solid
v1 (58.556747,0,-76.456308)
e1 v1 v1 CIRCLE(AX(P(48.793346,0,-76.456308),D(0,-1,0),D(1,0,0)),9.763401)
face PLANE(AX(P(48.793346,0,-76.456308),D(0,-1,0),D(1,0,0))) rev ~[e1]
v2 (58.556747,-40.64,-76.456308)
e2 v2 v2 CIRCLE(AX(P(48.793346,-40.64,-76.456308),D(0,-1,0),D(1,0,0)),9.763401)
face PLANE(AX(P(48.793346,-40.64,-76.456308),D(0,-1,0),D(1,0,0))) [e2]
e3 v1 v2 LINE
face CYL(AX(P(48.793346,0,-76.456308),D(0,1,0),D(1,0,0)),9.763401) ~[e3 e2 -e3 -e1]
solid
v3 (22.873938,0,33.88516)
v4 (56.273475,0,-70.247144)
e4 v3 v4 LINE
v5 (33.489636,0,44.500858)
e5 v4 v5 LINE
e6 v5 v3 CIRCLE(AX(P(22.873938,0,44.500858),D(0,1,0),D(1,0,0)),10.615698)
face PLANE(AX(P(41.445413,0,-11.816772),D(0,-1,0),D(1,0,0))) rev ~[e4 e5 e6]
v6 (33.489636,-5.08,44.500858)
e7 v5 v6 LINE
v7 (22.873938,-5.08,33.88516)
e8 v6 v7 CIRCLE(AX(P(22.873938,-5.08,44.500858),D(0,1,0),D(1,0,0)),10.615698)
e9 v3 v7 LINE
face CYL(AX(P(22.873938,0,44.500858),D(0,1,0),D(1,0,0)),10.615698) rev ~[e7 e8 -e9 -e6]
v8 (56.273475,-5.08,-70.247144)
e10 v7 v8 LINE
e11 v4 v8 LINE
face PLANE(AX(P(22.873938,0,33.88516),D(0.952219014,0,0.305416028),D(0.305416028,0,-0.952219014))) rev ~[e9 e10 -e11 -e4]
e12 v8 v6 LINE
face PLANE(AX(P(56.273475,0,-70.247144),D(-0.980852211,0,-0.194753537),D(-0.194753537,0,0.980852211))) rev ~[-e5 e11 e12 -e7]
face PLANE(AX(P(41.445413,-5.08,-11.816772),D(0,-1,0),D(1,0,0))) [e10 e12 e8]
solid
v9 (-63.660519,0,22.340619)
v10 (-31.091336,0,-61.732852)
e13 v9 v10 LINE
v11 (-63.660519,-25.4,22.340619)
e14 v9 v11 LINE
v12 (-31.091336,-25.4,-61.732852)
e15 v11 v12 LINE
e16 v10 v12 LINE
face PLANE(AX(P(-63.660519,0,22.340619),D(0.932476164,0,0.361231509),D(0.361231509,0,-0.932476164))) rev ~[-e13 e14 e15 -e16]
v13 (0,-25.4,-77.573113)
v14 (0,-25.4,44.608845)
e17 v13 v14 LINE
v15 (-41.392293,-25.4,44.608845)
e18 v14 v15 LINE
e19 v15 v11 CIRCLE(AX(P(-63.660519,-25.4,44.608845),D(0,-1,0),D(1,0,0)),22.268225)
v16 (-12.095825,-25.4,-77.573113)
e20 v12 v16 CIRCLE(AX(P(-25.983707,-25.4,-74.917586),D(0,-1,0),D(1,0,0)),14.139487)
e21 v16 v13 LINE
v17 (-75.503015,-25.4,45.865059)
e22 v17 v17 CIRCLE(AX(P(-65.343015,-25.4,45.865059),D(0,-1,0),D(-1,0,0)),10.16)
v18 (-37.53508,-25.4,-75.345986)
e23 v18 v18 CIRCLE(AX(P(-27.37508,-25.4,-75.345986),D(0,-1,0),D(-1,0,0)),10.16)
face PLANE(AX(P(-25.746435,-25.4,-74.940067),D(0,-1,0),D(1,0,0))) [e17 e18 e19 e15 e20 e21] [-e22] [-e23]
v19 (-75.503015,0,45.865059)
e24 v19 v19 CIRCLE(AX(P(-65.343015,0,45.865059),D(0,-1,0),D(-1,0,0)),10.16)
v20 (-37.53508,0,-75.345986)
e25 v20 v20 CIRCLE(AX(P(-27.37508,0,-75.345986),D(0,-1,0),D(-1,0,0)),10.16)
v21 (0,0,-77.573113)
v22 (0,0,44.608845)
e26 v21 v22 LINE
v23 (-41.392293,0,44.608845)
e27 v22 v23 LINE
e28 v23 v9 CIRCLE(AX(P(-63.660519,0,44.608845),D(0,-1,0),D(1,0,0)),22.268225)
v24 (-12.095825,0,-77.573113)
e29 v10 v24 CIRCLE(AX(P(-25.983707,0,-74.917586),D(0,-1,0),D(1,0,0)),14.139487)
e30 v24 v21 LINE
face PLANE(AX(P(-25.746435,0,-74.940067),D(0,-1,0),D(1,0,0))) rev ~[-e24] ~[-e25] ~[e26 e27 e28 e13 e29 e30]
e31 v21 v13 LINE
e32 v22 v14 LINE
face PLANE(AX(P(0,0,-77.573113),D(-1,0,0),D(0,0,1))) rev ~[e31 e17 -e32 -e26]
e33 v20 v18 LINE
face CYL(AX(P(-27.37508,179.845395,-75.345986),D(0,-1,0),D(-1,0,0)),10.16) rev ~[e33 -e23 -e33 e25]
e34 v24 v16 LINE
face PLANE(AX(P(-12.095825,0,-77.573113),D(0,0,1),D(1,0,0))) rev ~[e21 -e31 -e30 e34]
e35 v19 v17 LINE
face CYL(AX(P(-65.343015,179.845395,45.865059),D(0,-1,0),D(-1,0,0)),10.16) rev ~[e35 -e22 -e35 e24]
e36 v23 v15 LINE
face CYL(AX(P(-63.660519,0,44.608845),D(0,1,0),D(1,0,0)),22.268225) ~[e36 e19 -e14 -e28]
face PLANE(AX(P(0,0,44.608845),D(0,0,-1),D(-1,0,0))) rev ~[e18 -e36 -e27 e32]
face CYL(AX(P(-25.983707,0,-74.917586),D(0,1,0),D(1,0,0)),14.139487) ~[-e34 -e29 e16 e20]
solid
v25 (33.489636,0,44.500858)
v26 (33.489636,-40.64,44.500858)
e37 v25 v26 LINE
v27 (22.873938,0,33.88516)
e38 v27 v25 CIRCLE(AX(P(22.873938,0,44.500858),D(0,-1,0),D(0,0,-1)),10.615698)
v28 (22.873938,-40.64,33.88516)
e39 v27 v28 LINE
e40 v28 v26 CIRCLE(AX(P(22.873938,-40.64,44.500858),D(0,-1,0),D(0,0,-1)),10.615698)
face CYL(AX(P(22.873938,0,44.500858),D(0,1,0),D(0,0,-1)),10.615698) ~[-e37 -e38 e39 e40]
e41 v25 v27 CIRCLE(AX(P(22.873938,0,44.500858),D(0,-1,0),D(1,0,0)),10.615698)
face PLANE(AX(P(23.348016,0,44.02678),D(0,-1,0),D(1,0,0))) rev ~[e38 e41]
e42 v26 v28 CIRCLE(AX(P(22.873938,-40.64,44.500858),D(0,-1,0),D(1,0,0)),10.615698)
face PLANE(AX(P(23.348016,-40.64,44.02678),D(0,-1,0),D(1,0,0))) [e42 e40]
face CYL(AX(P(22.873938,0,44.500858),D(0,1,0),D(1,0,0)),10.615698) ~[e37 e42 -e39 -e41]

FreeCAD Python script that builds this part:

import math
import FreeCAD as App
import Part
import Sketcher
Q = App.Units.Quantity

doc = App.newDocument("Part")
params = doc.addObject("Spreadsheet::Sheet", "Params")
for row, (alias, value) in enumerate([
    ("pad1_length", "1 in"),
    ("sketch2_diameter", "0.8 in"),
    ("hole_diameter", "0.8 in"),
    ("pad2_length", "1.6 in"),
    ("pad3_length", "1.6 in"),
    ("pad4_length", "0.2 in"),
], start=1):
    params.set(f"A{row}", alias)
    params.set(f"B{row}", "=" + value)
    params.setAlias(f"B{row}", alias)

body = doc.addObject("PartDesign::Body", "Body")

# Sketch on XZ plane
sketch1 = doc.addObject("Sketcher::SketchObject", "Sketch")
body.addObject(sketch1)
sketch1.AttachmentSupport = (doc.XZ_Plane, [""])
sketch1.MapMode = "FlatFace"
sketch1.addGeometry(Part.ArcOfCircle(Part.Circle(App.Vector(-25.983707, -74.917586, 0), App.Vector(0, 0, 1), 14.139487), math.radians(111.175846), math.radians(349.175039)), False)
sketch1.addGeometry(Part.LineSegment(App.Vector(-12.095825, -77.573113, 0), App.Vector(0, -77.573113, 0)), False)
sketch1.addGeometry(Part.LineSegment(App.Vector(0, -77.573113, 0), App.Vector(0, 44.608845, 0)), False)
sketch1.addGeometry(Part.LineSegment(App.Vector(0, 44.608845, 0), App.Vector(-41.392293, 44.608845, 0)), False)
sketch1.addGeometry(Part.ArcOfCircle(Part.Circle(App.Vector(-63.660519, 44.608845, 0), App.Vector(0, 0, 1), 22.268225), math.radians(0), math.radians(270)), False)
sketch1.addGeometry(Part.LineSegment(App.Vector(-63.660519, 22.340619, 0), App.Vector(-31.091336, -61.732852, 0)), False)
sketch1.addConstraint(Sketcher.Constraint("Coincident", 0, 2, 1, 1))
sketch1.addConstraint(Sketcher.Constraint("Coincident", 1, 2, 2, 1))
sketch1.addConstraint(Sketcher.Constraint("Coincident", 2, 2, 3, 1))
sketch1.addConstraint(Sketcher.Constraint("Coincident", 3, 2, 4, 1))
sketch1.addConstraint(Sketcher.Constraint("Coincident", 4, 2, 5, 1))
sketch1.addConstraint(Sketcher.Constraint("Coincident", 5, 2, 0, 1))
sketch1.addConstraint(Sketcher.Constraint("Horizontal", 1))
sketch1.addConstraint(Sketcher.Constraint("Vertical", 2))
sketch1.addConstraint(Sketcher.Constraint("Horizontal", 3))
sketch1.addConstraint(Sketcher.Constraint("PointOnObject", 1, 2, -2))
sketch1.addConstraint(Sketcher.Constraint("Horizontal", 4, 3, 2, 2))
sketch1.addConstraint(Sketcher.Constraint("Radius", 0, 14.139487))
sketch1.addConstraint(Sketcher.Constraint("Radius", 4, 22.268225))
sketch1.addConstraint(Sketcher.Constraint("DistanceX", 1, 1, 1, 2, 12.095825))
sketch1.addConstraint(Sketcher.Constraint("DistanceX", 3, 2, 3, 1, 41.392293))
sketch1.addConstraint(Sketcher.Constraint("DistanceY", 2, 1, 2, 2, 122.181957))
sketch1.addConstraint(Sketcher.Constraint("DistanceX", 4, 2, -1, 1, 63.660519))
sketch1.addConstraint(Sketcher.Constraint("DistanceY", -1, 1, 4, 2, 22.340619))
sketch1.addConstraint(Sketcher.Constraint("DistanceY", 5, 2, -1, 1, 61.732852))
sketch1.addConstraint(Sketcher.Constraint("DistanceX", 4, 3, 0, 3, 37.676811))
pad1 = doc.addObject("PartDesign::Pad", "Pad")
body.addObject(pad1)
pad1.Profile = sketch1
pad1.setExpression("Length", "Params.pad1_length")

# Sketch on XZ plane
sketch2 = doc.addObject("Sketcher::SketchObject", "Sketch001")
body.addObject(sketch2)
sketch2.AttachmentSupport = (doc.XZ_Plane, [""])
sketch2.MapMode = "FlatFace"
sketch2.addGeometry(Part.Circle(App.Vector(-65.343015, 45.865059, 0), App.Vector(0, 0, 1), 10.16), False)
sketch2.addGeometry(Part.Circle(App.Vector(-27.37508, -75.345986, 0), App.Vector(0, 0, 1), 10.16), False)
sketch2.addConstraint(Sketcher.Constraint("Equal", 0, 1))
sketch2.addConstraint(Sketcher.Constraint("Diameter", 0, Q("0.8 in")))
sketch2.addConstraint(Sketcher.Constraint("DistanceY", -1, 1, 0, 3, 45.865059))
sketch2.addConstraint(Sketcher.Constraint("DistanceX", 1, 3, -1, 1, 27.37508))
sketch2.addConstraint(Sketcher.Constraint("DistanceX", 0, 3, -1, 1, 65.343015))
sketch2.addConstraint(Sketcher.Constraint("DistanceY", 1, 3, -1, 1, 75.345986))
sketch2.setExpression("Constraints[1]", "Params.sketch2_diameter")
doc.recompute()
hole = doc.addObject("PartDesign::Hole", "Hole")
body.addObject(hole)
hole.Profile = sketch2
hole.ThreadType = "None"
hole.setExpression("Diameter", "Params.hole_diameter")
hole.DepthType = "ThroughAll"
hole.Reversed = True
body2 = doc.addObject("PartDesign::Body", "Body001")

# Sketch on XZ plane
sketch3 = doc.addObject("Sketcher::SketchObject", "Sketch002")
body2.addObject(sketch3)
sketch3.AttachmentSupport = (doc.getObject("XZ_Plane001"), [""])
sketch3.MapMode = "FlatFace"
sketch3.addGeometry(Part.ArcOfCircle(Part.Circle(App.Vector(22.873938, 44.500858, 0), App.Vector(0, 0, 1), 10.615698), math.radians(-90), math.radians(0)), False)
sketch3.addGeometry(Part.ArcOfCircle(Part.Circle(App.Vector(22.873938, 44.500858, 0), App.Vector(0, 0, 1), 10.615698), math.radians(0), math.radians(270)), False)
sketch3.addConstraint(Sketcher.Constraint("Tangent", 0, 1, 1, 2))
sketch3.addConstraint(Sketcher.Constraint("Coincident", 1, 1, 0, 2))
sketch3.addConstraint(Sketcher.Constraint("Horizontal", 0, 3, 1, 1))
sketch3.addConstraint(Sketcher.Constraint("Vertical", 1, 3, 0, 1))
sketch3.addConstraint(Sketcher.Constraint("Radius", 0, 10.615698))
sketch3.addConstraint(Sketcher.Constraint("DistanceX", -1, 1, 0, 3, 22.873938))
sketch3.addConstraint(Sketcher.Constraint("DistanceY", -1, 1, 0, 1, 33.88516))
pad2 = doc.addObject("PartDesign::Pad", "Pad001")
body2.addObject(pad2)
pad2.Profile = sketch3
pad2.setExpression("Length", "Params.pad2_length")
body3 = doc.addObject("PartDesign::Body", "Body002")

# Sketch on XZ plane
sketch4 = doc.addObject("Sketcher::SketchObject", "Sketch003")
body3.addObject(sketch4)
sketch4.AttachmentSupport = (doc.getObject("XZ_Plane002"), [""])
sketch4.MapMode = "FlatFace"
sketch4.addGeometry(Part.Circle(App.Vector(48.793346, -76.456308, 0), App.Vector(0, 0, 1), 9.763401), False)
sketch4.addConstraint(Sketcher.Constraint("Diameter", 0, 19.526803))
sketch4.addConstraint(Sketcher.Constraint("DistanceY", 0, 3, -1, 1, 76.456308))
sketch4.addConstraint(Sketcher.Constraint("DistanceX", -1, 1, 0, 3, 48.793346))
pad3 = doc.addObject("PartDesign::Pad", "Pad002")
body3.addObject(pad3)
pad3.Profile = sketch4
pad3.setExpression("Length", "Params.pad3_length")
body4 = doc.addObject("PartDesign::Body", "Body003")

# Sketch on XZ plane
sketch5 = doc.addObject("Sketcher::SketchObject", "Sketch004")
body4.addObject(sketch5)
sketch5.AttachmentSupport = (doc.getObject("XZ_Plane003"), [""])
sketch5.MapMode = "FlatFace"
sketch5.addGeometry(Part.LineSegment(App.Vector(56.273475, -70.247144, 0), App.Vector(33.489636, 44.500858, 0)), False)
sketch5.addGeometry(Part.ArcOfCircle(Part.Circle(App.Vector(22.873938, 44.500858, 0), App.Vector(0, 0, 1), 10.615698), math.radians(-90), math.radians(0)), False)
sketch5.addGeometry(Part.LineSegment(App.Vector(22.873938, 33.88516, 0), App.Vector(56.273475, -70.247144, 0)), False)
sketch5.addConstraint(Sketcher.Constraint("Coincident", 0, 2, 1, 2))
sketch5.addConstraint(Sketcher.Constraint("Coincident", 1, 1, 2, 1))
sketch5.addConstraint(Sketcher.Constraint("Coincident", 2, 2, 0, 1))
sketch5.addConstraint(Sketcher.Constraint("Horizontal", 1, 3, 0, 2))
sketch5.addConstraint(Sketcher.Constraint("Radius", 1, 10.615698))
sketch5.addConstraint(Sketcher.Constraint("DistanceX", 1, 1, 0, 2, 10.615698))
sketch5.addConstraint(Sketcher.Constraint("DistanceY", 2, 2, 0, 2, 114.748001))
sketch5.addConstraint(Sketcher.Constraint("DistanceX", -1, 1, 1, 3, 22.873938))
sketch5.addConstraint(Sketcher.Constraint("DistanceY", -1, 1, 1, 1, 33.88516))
sketch5.addConstraint(Sketcher.Constraint("DistanceX", 0, 2, 2, 2, 22.783839))
pad4 = doc.addObject("PartDesign::Pad", "Pad003")
body4.addObject(pad4)
pad4.Profile = sketch5
pad4.setExpression("Length", "Params.pad4_length")

doc.recompute()
